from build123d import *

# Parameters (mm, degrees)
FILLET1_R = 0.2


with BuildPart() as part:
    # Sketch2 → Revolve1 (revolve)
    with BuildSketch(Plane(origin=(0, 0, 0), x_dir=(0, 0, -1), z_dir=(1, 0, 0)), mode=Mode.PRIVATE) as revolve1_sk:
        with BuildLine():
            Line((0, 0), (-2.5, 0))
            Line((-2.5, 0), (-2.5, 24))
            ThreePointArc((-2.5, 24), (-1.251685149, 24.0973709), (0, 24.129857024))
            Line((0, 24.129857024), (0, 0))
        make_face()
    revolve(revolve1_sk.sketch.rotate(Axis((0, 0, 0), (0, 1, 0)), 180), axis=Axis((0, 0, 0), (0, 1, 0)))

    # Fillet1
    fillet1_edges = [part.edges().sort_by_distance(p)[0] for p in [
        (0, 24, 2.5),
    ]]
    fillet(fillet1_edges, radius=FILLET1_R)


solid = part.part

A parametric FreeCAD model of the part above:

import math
import FreeCAD as App
import Part
import Sketcher

V = App.Vector
Q = App.Units.Quantity


def edges_at(feature, points):
    """Names of the edges that pass closest to the given points."""
    edges = feature.Shape.Edges
    near = lambda p: min(range(len(edges)), key=lambda i: edges[i].distToShape(Part.Vertex(*p))[0])
    return sorted({f"Edge{near(p) + 1}" for p in points})

doc = App.newDocument("Part")
body = doc.addObject("PartDesign::Body", "Body")

sketch1 = body.newObject("Sketcher::SketchObject", "Sketch")
sketch1.AttachmentSupport = (doc.getObject("YZ_Plane"), [""])
sketch1.MapMode = "FlatFace"
sketch1.addGeometry(Part.LineSegment(V(0, 2.5, 0), V(0, 0, 0)), False)
sketch1.addGeometry(Part.LineSegment(V(0, 0, 0), V(24.1, 0, 0)), False)
sketch1.addGeometry(Part.ArcOfCircle(Part.Circle(V(0, 0, 0), V(0, 0, 1), 24.1), math.radians(0), math.radians(5.95)), False)
sketch1.addGeometry(Part.LineSegment(V(24, 2.5, 0), V(0, 2.5, 0)), False)
sketch1.addConstraint(Sketcher.Constraint("Coincident", 0, 2, 1, 1))
sketch1.addConstraint(Sketcher.Constraint("Coincident", 1, 2, 2, 1))
sketch1.addConstraint(Sketcher.Constraint("Coincident", 2, 2, 3, 1))
sketch1.addConstraint(Sketcher.Constraint("Coincident", 3, 2, 0, 1))
sketch1.addConstraint(Sketcher.Constraint("Vertical", 0))
sketch1.addConstraint(Sketcher.Constraint("Horizontal", 1))
sketch1.addConstraint(Sketcher.Constraint("Horizontal", 3))
sketch1.addConstraint(Sketcher.Constraint("Coincident", 2, 3, -1, 1))
sketch1.addConstraint(Sketcher.Constraint("Coincident", 0, 2, -1, 1))
sketch1.addConstraint(Sketcher.Constraint("DistanceX", 3, 2, 3, 1, Q("24 mm")))
sketch1.addConstraint(Sketcher.Constraint("DistanceY", 0, 2, 0, 1, Q("2.5 mm")))
revolution = body.newObject("PartDesign::Revolution", "Revolution")
revolution.Profile = sketch1
revolution.ReferenceAxis = (sketch1, ["H_Axis"])
revolution.Angle = 360
doc.recompute()

fillet = body.newObject("PartDesign::Fillet", "Fillet")
fillet.Base = (revolution, edges_at(revolution, [(0, 24, 2.5)]))
fillet.Radius = 0.2

doc.recompute()
